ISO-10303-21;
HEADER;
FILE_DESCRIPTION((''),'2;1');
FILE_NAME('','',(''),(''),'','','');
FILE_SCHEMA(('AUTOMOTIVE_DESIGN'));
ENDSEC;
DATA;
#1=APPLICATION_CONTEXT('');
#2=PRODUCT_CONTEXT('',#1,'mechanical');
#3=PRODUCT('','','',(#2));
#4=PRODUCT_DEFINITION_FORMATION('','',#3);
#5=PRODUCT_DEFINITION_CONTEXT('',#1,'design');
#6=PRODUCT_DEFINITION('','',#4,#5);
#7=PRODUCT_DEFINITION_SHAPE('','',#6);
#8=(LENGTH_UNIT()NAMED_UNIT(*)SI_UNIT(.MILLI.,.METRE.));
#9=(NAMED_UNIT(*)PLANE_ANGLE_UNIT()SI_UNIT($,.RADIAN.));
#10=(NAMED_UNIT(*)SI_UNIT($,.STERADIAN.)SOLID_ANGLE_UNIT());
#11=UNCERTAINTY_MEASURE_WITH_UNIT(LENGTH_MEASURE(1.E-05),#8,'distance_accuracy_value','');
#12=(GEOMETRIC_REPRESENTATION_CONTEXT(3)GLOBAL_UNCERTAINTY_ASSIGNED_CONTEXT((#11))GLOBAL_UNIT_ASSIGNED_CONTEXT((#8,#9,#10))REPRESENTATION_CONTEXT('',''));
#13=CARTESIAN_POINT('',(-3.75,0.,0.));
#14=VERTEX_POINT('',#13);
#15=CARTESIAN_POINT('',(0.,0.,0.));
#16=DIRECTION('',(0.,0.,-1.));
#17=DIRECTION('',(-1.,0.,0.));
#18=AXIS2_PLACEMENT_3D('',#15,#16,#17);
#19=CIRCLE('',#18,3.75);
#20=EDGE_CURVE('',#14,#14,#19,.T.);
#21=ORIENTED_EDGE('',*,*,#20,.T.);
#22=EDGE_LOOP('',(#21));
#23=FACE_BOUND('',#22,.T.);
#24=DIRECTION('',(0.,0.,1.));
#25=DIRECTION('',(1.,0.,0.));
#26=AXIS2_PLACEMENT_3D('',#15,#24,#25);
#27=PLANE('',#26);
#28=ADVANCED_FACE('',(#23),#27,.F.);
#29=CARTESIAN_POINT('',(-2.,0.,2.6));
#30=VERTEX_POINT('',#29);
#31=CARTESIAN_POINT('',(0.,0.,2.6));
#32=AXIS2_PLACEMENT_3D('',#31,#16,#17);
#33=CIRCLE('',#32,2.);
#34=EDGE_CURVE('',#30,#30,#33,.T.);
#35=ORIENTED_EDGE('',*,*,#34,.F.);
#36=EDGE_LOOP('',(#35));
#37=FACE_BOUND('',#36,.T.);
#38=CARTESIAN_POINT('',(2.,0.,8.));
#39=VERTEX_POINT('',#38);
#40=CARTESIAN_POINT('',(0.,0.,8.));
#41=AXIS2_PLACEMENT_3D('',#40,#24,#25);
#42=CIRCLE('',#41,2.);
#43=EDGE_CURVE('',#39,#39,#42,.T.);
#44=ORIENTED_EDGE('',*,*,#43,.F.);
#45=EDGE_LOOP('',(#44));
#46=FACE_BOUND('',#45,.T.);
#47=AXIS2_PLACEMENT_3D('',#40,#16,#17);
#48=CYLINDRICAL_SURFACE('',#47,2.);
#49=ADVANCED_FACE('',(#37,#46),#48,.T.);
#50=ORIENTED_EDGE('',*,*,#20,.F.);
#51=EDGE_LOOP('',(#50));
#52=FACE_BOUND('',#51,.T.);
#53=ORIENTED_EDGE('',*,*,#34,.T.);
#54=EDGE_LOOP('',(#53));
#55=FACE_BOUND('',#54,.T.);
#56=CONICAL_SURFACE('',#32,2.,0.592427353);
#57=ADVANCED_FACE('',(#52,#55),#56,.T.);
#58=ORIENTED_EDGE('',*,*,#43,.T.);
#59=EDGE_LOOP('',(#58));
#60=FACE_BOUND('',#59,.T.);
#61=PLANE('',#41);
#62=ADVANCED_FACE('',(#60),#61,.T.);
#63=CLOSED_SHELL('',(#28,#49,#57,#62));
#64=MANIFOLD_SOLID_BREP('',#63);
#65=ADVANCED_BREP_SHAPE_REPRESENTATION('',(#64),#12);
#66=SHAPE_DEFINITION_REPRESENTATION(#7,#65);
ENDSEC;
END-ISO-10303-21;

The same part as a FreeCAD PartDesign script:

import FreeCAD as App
import Part
import Sketcher

doc = App.newDocument("Part")
params = doc.addObject("Spreadsheet::Sheet", "Params")
for row, (alias, value) in enumerate([
    ("sketch1_diameter", "4 mm"),
    ("pad1_length", "8 mm"),
    ("sketch2_height", "2.6 mm"),
    ("sketch2_width", "1.75 mm"),
    ("revolution_angle", "360 deg"),
], start=1):
    params.set(f"A{row}", alias)
    params.set(f"B{row}", "=" + value)
    params.setAlias(f"B{row}", alias)

body = doc.addObject("PartDesign::Body", "Body")

sketch1 = doc.addObject("Sketcher::SketchObject", "Sketch")
body.addObject(sketch1)
sketch1.AttachmentSupport = (doc.XY_Plane, [""])
sketch1.MapMode = "FlatFace"
sketch1.addGeometry(Part.Circle(App.Vector(0, 0, 0), App.Vector(0, 0, 1), 2), False)
sketch1.addConstraint(Sketcher.Constraint("Coincident", 0, 3, -1, 1))
sketch1.addConstraint(Sketcher.Constraint("Diameter", 0, 4.0))
sketch1.setExpression("Constraints[1]", "Params.sketch1_diameter")
pad1 = doc.addObject("PartDesign::Pad", "Pad")
body.addObject(pad1)
pad1.Profile = sketch1
pad1.setExpression("Length", "Params.pad1_length")

sketch2 = doc.addObject("Sketcher::SketchObject", "Sketch001")
body.addObject(sketch2)
sketch2.AttachmentSupport = (doc.XZ_Plane, [""])
sketch2.MapMode = "FlatFace"
sketch2.addGeometry(Part.LineSegment(App.Vector(3.8, 0, 0), App.Vector(2, 0, 0)), False)
sketch2.addGeometry(Part.LineSegment(App.Vector(2, 0, 0), App.Vector(2, 2.6, 0)), False)
sketch2.addGeometry(Part.LineSegment(App.Vector(2, 2.6, 0), App.Vector(3.8, 0, 0)), False)
sketch2.addConstraint(Sketcher.Constraint("Coincident", 0, 2, 1, 1))
sketch2.addConstraint(Sketcher.Constraint("Coincident", 1, 2, 2, 1))
sketch2.addConstraint(Sketcher.Constraint("Coincident", 2, 2, 0, 1))
sketch2.addConstraint(Sketcher.Constraint("Horizontal", 0))
sketch2.addConstraint(Sketcher.Constraint("Vertical", 1))
sketch2.addConstraint(Sketcher.Constraint("PointOnObject", 0, 2, -1))
sketch2.addConstraint(Sketcher.Constraint("DistanceY", 1, 1, 1, 2, 2.6))
sketch2.addConstraint(Sketcher.Constraint("DistanceX", -1, 1, 0, 2, 2.0))
sketch2.addConstraint(Sketcher.Constraint("DistanceX", 0, 2, 0, 1, 1.75))
sketch2.setExpression("Constraints[6]", "Params.sketch2_height")
sketch2.setExpression("Constraints[8]", "Params.sketch2_width")
revolution = doc.addObject("PartDesign::Revolution", "Revolution")
body.addObject(revolution)
revolution.Profile = sketch2
revolution.ReferenceAxis = (sketch2, ["V_Axis"])
revolution.setExpression("Angle", "Params.revolution_angle")

doc.recompute()
